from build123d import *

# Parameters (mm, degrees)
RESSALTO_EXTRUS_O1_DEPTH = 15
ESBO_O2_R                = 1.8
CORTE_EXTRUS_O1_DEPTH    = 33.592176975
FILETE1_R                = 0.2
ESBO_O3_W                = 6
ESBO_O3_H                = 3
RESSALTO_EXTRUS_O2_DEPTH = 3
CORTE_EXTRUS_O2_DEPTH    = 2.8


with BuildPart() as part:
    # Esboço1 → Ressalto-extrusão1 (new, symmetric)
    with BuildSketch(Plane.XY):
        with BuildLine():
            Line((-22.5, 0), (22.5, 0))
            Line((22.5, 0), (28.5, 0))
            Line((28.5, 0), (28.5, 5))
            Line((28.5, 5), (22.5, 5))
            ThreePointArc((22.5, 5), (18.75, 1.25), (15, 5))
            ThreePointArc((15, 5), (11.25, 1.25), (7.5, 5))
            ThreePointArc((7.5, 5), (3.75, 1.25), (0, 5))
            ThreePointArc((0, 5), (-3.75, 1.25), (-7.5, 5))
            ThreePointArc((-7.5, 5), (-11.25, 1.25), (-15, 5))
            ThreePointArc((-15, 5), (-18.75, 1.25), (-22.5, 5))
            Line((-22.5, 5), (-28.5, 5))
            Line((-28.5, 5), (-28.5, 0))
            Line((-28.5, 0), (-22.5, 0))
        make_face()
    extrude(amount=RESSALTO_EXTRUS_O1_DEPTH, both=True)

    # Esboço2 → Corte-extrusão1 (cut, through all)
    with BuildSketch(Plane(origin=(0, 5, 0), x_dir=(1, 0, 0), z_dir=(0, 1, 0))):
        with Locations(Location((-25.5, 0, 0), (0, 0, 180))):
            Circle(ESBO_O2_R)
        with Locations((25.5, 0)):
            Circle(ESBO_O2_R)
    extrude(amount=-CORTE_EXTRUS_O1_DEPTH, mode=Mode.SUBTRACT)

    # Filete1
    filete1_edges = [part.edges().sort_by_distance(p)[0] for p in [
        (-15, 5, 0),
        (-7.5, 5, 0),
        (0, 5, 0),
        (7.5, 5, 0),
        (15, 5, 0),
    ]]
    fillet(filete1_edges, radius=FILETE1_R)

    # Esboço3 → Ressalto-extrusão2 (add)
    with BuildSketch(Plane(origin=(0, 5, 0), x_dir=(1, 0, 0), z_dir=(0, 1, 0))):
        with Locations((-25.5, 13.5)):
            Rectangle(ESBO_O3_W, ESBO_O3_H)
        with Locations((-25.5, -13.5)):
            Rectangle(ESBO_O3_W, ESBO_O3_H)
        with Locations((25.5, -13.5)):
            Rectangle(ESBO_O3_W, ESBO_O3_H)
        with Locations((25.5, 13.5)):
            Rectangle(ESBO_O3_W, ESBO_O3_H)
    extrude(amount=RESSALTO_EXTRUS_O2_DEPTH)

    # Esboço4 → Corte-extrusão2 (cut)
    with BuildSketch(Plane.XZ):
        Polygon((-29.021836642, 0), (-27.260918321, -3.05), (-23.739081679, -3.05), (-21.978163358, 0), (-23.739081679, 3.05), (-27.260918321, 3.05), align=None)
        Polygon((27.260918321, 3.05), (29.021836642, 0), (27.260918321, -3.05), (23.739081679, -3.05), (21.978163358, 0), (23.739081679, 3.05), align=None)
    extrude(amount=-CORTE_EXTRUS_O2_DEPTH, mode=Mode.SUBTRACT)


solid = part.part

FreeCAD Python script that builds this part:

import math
import FreeCAD as App
import Part
import Sketcher

V = App.Vector
Q = App.Units.Quantity


def edges_at(feature, points):
    """Names of the edges that pass closest to the given points."""
    edges = feature.Shape.Edges
    near = lambda p: min(range(len(edges)), key=lambda i: edges[i].distToShape(Part.Vertex(*p))[0])
    return sorted({f"Edge{near(p) + 1}" for p in points})

doc = App.newDocument("Part")
body = doc.addObject("PartDesign::Body", "Body")

# Sketch on XY plane
sketch1 = body.newObject("Sketcher::SketchObject", "Sketch")
sketch1.AttachmentSupport = (doc.getObject("XY_Plane"), [""])
sketch1.MapMode = "FlatFace"
sketch1.addGeometry(Part.LineSegment(V(28.5, 0, 0), V(28.5, 5, 0)), False)
sketch1.addGeometry(Part.LineSegment(V(28.5, 5, 0), V(22.5, 5, 0)), False)
sketch1.addGeometry(Part.ArcOfCircle(Part.Circle(V(18.75, 5, 0), V(0, 0, 1), 3.75), math.radians(180), math.radians(360)), False)
sketch1.addGeometry(Part.ArcOfCircle(Part.Circle(V(11.25, 5, 0), V(0, 0, 1), 3.75), math.radians(180), math.radians(360)), False)
sketch1.addGeometry(Part.ArcOfCircle(Part.Circle(V(3.75, 5, 0), V(0, 0, 1), 3.75), math.radians(180), math.radians(360)), False)
sketch1.addGeometry(Part.ArcOfCircle(Part.Circle(V(-3.75, 5, 0), V(0, 0, 1), 3.75), math.radians(180), math.radians(360)), False)
sketch1.addGeometry(Part.ArcOfCircle(Part.Circle(V(-11.25, 5, 0), V(0, 0, 1), 3.75), math.radians(180), math.radians(360)), False)
sketch1.addGeometry(Part.ArcOfCircle(Part.Circle(V(-18.75, 5, 0), V(0, 0, 1), 3.75), math.radians(180), math.radians(360)), False)
sketch1.addGeometry(Part.LineSegment(V(-22.5, 5, 0), V(-28.5, 5, 0)), False)
sketch1.addGeometry(Part.LineSegment(V(-28.5, 5, 0), V(-28.5, 0, 0)), False)
sketch1.addGeometry(Part.LineSegment(V(-28.5, 0, 0), V(28.5, 0, 0)), False)
sketch1.addConstraint(Sketcher.Constraint("Coincident", 0, 2, 1, 1))
sketch1.addConstraint(Sketcher.Constraint("Coincident", 1, 2, 2, 2))
sketch1.addConstraint(Sketcher.Constraint("Tangent", 2, 1, 3, 2))
sketch1.addConstraint(Sketcher.Constraint("Tangent", 3, 1, 4, 2))
sketch1.addConstraint(Sketcher.Constraint("Tangent", 4, 1, 5, 2))
sketch1.addConstraint(Sketcher.Constraint("Tangent", 5, 1, 6, 2))
sketch1.addConstraint(Sketcher.Constraint("Tangent", 6, 1, 7, 2))
sketch1.addConstraint(Sketcher.Constraint("Coincident", 7, 1, 8, 1))
sketch1.addConstraint(Sketcher.Constraint("Coincident", 8, 2, 9, 1))
sketch1.addConstraint(Sketcher.Constraint("Coincident", 9, 2, 10, 1))
sketch1.addConstraint(Sketcher.Constraint("Coincident", 10, 2, 0, 1))
sketch1.addConstraint(Sketcher.Constraint("Vertical", 0))
sketch1.addConstraint(Sketcher.Constraint("Horizontal", 1))
sketch1.addConstraint(Sketcher.Constraint("Horizontal", 8))
sketch1.addConstraint(Sketcher.Constraint("Vertical", 9))
sketch1.addConstraint(Sketcher.Constraint("Horizontal", 10))
sketch1.addConstraint(Sketcher.Constraint("Equal", 2, 3))
sketch1.addConstraint(Sketcher.Constraint("Equal", 3, 4))
sketch1.addConstraint(Sketcher.Constraint("Equal", 4, 5))
sketch1.addConstraint(Sketcher.Constraint("Equal", 5, 6))
sketch1.addConstraint(Sketcher.Constraint("Equal", 6, 7))
sketch1.addConstraint(Sketcher.Constraint("Symmetric", 9, 2, 10, 2, -1, 1))
sketch1.addConstraint(Sketcher.Constraint("Symmetric", 4, 3, 5, 3, -2))
sketch1.addConstraint(Sketcher.Constraint("Horizontal", 2, 3, 3, 3))
sketch1.addConstraint(Sketcher.Constraint("Horizontal", 3, 3, 4, 3))
sketch1.addConstraint(Sketcher.Constraint("Horizontal", 5, 3, 6, 3))
sketch1.addConstraint(Sketcher.Constraint("Horizontal", 6, 3, 7, 3))
sketch1.addConstraint(Sketcher.Constraint("Horizontal", 7, 3, 0, 2))
sketch1.addConstraint(Sketcher.Constraint("Horizontal", 6, 1, 7, 1))
sketch1.addConstraint(Sketcher.Constraint("DistanceX", 1, 2, 1, 1, 6.0))
sketch1.addConstraint(Sketcher.Constraint("DistanceX", 10, 1, 10, 2, 57.0))
sketch1.addConstraint(Sketcher.Constraint("DistanceY", 0, 1, 0, 2, 5.0))
pad1 = body.newObject("PartDesign::Pad", "Pad")
pad1.Profile = sketch1
pad1.Length = 30
pad1.Midplane = True

# Sketch on XZ plane
sketch2 = body.newObject("Sketcher::SketchObject", "Sketch001")
sketch2.AttachmentSupport = (doc.getObject("XZ_Plane"), [""])
sketch2.MapMode = "FlatFace"
sketch2.AttachmentOffset = App.Placement(V(0, 0, -5), App.Rotation())
sketch2.addGeometry(Part.Circle(V(-25.5, 0, 0), V(0, 0, 1), 1.8), False)
sketch2.addGeometry(Part.Circle(V(25.5, 0, 0), V(0, 0, 1), 1.8), False)
sketch2.addConstraint(Sketcher.Constraint("Equal", 0, 1))
sketch2.addConstraint(Sketcher.Constraint("Symmetric", 0, 3, 1, 3, -1, 1))
sketch2.addConstraint(Sketcher.Constraint("PointOnObject", 0, 3, -1))
sketch2.addConstraint(Sketcher.Constraint("Diameter", 0, 3.6))
sketch2.addConstraint(Sketcher.Constraint("DistanceX", 0, 3, 1, 3, 51.0))
pocket1 = body.newObject("PartDesign::Pocket", "Pocket")
pocket1.Profile = sketch2
pocket1.Type = "ThroughAll"
pocket1.Reversed = True
doc.recompute()

fillet = body.newObject("PartDesign::Fillet", "Fillet")
fillet.Base = (pocket1, edges_at(pocket1, [
    (-15, 5, 0),
    (-7.5, 5, 0),
    (0, 5, 0),
    (7.5, 5, 0),
    (15, 5, 0),
]))
fillet.Radius = 0.2

# Sketch on XZ plane
sketch3 = body.newObject("Sketcher::SketchObject", "Sketch002")
sketch3.AttachmentSupport = (doc.getObject("XZ_Plane"), [""])
sketch3.MapMode = "FlatFace"
sketch3.AttachmentOffset = App.Placement(V(0, 0, -5), App.Rotation())
sketch3.addGeometry(Part.LineSegment(V(-28.5, -15, 0), V(-28.5, -12, 0)), False)
sketch3.addGeometry(Part.LineSegment(V(-28.5, -12, 0), V(-22.5, -12, 0)), False)
sketch3.addGeometry(Part.LineSegment(V(-22.5, -12, 0), V(-22.5, -15, 0)), False)
sketch3.addGeometry(Part.LineSegment(V(-22.5, -15, 0), V(-28.5, -15, 0)), False)
sketch3.addGeometry(Part.LineSegment(V(-28.5, 12, 0), V(-28.5, 15, 0)), False)
sketch3.addGeometry(Part.LineSegment(V(-28.5, 15, 0), V(-22.5, 15, 0)), False)
sketch3.addGeometry(Part.LineSegment(V(-22.5, 15, 0), V(-22.5, 12, 0)), False)
sketch3.addGeometry(Part.LineSegment(V(-22.5, 12, 0), V(-28.5, 12, 0)), False)
sketch3.addGeometry(Part.LineSegment(V(22.5, 12, 0), V(22.5, 15, 0)), False)
sketch3.addGeometry(Part.LineSegment(V(22.5, 15, 0), V(28.5, 15, 0)), False)
sketch3.addGeometry(Part.LineSegment(V(28.5, 15, 0), V(28.5, 12, 0)), False)
sketch3.addGeometry(Part.LineSegment(V(28.5, 12, 0), V(22.5, 12, 0)), False)
sketch3.addGeometry(Part.LineSegment(V(22.5, -15, 0), V(22.5, -12, 0)), False)
sketch3.addGeometry(Part.LineSegment(V(22.5, -12, 0), V(28.5, -12, 0)), False)
sketch3.addGeometry(Part.LineSegment(V(28.5, -12, 0), V(28.5, -15, 0)), False)
sketch3.addGeometry(Part.LineSegment(V(28.5, -15, 0), V(22.5, -15, 0)), False)
sketch3.addConstraint(Sketcher.Constraint("Coincident", 0, 2, 1, 1))
sketch3.addConstraint(Sketcher.Constraint("Coincident", 1, 2, 2, 1))
sketch3.addConstraint(Sketcher.Constraint("Coincident", 2, 2, 3, 1))
sketch3.addConstraint(Sketcher.Constraint("Coincident", 3, 2, 0, 1))
sketch3.addConstraint(Sketcher.Constraint("Coincident", 4, 2, 5, 1))
sketch3.addConstraint(Sketcher.Constraint("Coincident", 5, 2, 6, 1))
sketch3.addConstraint(Sketcher.Constraint("Coincident", 6, 2, 7, 1))
sketch3.addConstraint(Sketcher.Constraint("Coincident", 7, 2, 4, 1))
sketch3.addConstraint(Sketcher.Constraint("Coincident", 8, 2, 9, 1))
sketch3.addConstraint(Sketcher.Constraint("Coincident", 9, 2, 10, 1))
sketch3.addConstraint(Sketcher.Constraint("Coincident", 10, 2, 11, 1))
sketch3.addConstraint(Sketcher.Constraint("Coincident", 11, 2, 8, 1))
sketch3.addConstraint(Sketcher.Constraint("Coincident", 12, 2, 13, 1))
sketch3.addConstraint(Sketcher.Constraint("Coincident", 13, 2, 14, 1))
sketch3.addConstraint(Sketcher.Constraint("Coincident", 14, 2, 15, 1))
sketch3.addConstraint(Sketcher.Constraint("Coincident", 15, 2, 12, 1))
sketch3.addConstraint(Sketcher.Constraint("Vertical", 0))
sketch3.addConstraint(Sketcher.Constraint("Horizontal", 1))
sketch3.addConstraint(Sketcher.Constraint("Vertical", 2))
sketch3.addConstraint(Sketcher.Constraint("Horizontal", 3))
sketch3.addConstraint(Sketcher.Constraint("Vertical", 4))
sketch3.addConstraint(Sketcher.Constraint("Horizontal", 5))
sketch3.addConstraint(Sketcher.Constraint("Vertical", 6))
sketch3.addConstraint(Sketcher.Constraint("Horizontal", 7))
sketch3.addConstraint(Sketcher.Constraint("Vertical", 8))
sketch3.addConstraint(Sketcher.Constraint("Horizontal", 9))
sketch3.addConstraint(Sketcher.Constraint("Vertical", 10))
sketch3.addConstraint(Sketcher.Constraint("Horizontal", 11))
sketch3.addConstraint(Sketcher.Constraint("Vertical", 12))
sketch3.addConstraint(Sketcher.Constraint("Horizontal", 13))
sketch3.addConstraint(Sketcher.Constraint("Vertical", 14))
sketch3.addConstraint(Sketcher.Constraint("Horizontal", 15))
sketch3.addConstraint(Sketcher.Constraint("Symmetric", 2, 2, 8, 2, -1, 1))
sketch3.addConstraint(Sketcher.Constraint("Symmetric", 0, 2, 10, 2, -1, 1))
sketch3.addConstraint(Sketcher.Constraint("Symmetric", 6, 2, 12, 2, -1, 1))
sketch3.addConstraint(Sketcher.Constraint("Symmetric", 4, 2, 14, 2, -1, 1))
sketch3.addConstraint(Sketcher.Constraint("Symmetric", 5, 2, 8, 2, -2))
sketch3.addConstraint(Sketcher.Constraint("Symmetric", 7, 2, 10, 2, -2))
sketch3.addConstraint(Sketcher.Constraint("DistanceX", 1, 1, 1, 2, 6.0))
sketch3.addConstraint(Sketcher.Constraint("DistanceY", 0, 1, 0, 2, 3.0))
sketch3.addConstraint(Sketcher.Constraint("DistanceY", 0, 2, -1, 1, 12.0))
sketch3.addConstraint(Sketcher.Constraint("DistanceX", 5, 2, 8, 2, 45.0))
pad2 = body.newObject("PartDesign::Pad", "Pad001")
pad2.Profile = sketch3
pad2.Length = 3
pad2.Reversed = True

# Sketch on XZ plane
sketch4 = body.newObject("Sketcher::SketchObject", "Sketch003")
sketch4.AttachmentSupport = (doc.getObject("XZ_Plane"), [""])
sketch4.MapMode = "FlatFace"
sketch4.addGeometry(Part.LineSegment(V(-29.021837, 0, 0), V(-27.260918, -3.05, 0)), False)
sketch4.addGeometry(Part.LineSegment(V(-27.260918, -3.05, 0), V(-23.739082, -3.05, 0)), False)
sketch4.addGeometry(Part.LineSegment(V(-23.739082, -3.05, 0), V(-21.978163, 0, 0)), False)
sketch4.addGeometry(Part.LineSegment(V(-21.978163, 0, 0), V(-23.739082, 3.05, 0)), False)
sketch4.addGeometry(Part.LineSegment(V(-23.739082, 3.05, 0), V(-27.260918, 3.05, 0)), False)
sketch4.addGeometry(Part.LineSegment(V(-27.260918, 3.05, 0), V(-29.021837, 0, 0)), False)
sketch4.addGeometry(Part.LineSegment(V(29.021837, 0, 0), V(27.260918, 3.05, 0)), False)
sketch4.addGeometry(Part.LineSegment(V(27.260918, 3.05, 0), V(23.739082, 3.05, 0)), False)
sketch4.addGeometry(Part.LineSegment(V(23.739082, 3.05, 0), V(21.978163, 0, 0)), False)
sketch4.addGeometry(Part.LineSegment(V(21.978163, 0, 0), V(23.739082, -3.05, 0)), False)
sketch4.addGeometry(Part.LineSegment(V(23.739082, -3.05, 0), V(27.260918, -3.05, 0)), False)
sketch4.addGeometry(Part.LineSegment(V(27.260918, -3.05, 0), V(29.021837, 0, 0)), False)
sketch4.addConstraint(Sketcher.Constraint("Coincident", 0, 2, 1, 1))
sketch4.addConstraint(Sketcher.Constraint("Coincident", 1, 2, 2, 1))
sketch4.addConstraint(Sketcher.Constraint("Coincident", 2, 2, 3, 1))
sketch4.addConstraint(Sketcher.Constraint("Coincident", 3, 2, 4, 1))
sketch4.addConstraint(Sketcher.Constraint("Coincident", 4, 2, 5, 1))
sketch4.addConstraint(Sketcher.Constraint("Coincident", 5, 2, 0, 1))
sketch4.addConstraint(Sketcher.Constraint("Coincident", 6, 2, 7, 1))
sketch4.addConstraint(Sketcher.Constraint("Coincident", 7, 2, 8, 1))
sketch4.addConstraint(Sketcher.Constraint("Coincident", 8, 2, 9, 1))
sketch4.addConstraint(Sketcher.Constraint("Coincident", 9, 2, 10, 1))
sketch4.addConstraint(Sketcher.Constraint("Coincident", 10, 2, 11, 1))
sketch4.addConstraint(Sketcher.Constraint("Coincident", 11, 2, 6, 1))
sketch4.addConstraint(Sketcher.Constraint("Horizontal", 1))
sketch4.addConstraint(Sketcher.Constraint("Horizontal", 4))
sketch4.addConstraint(Sketcher.Constraint("Horizontal", 7))
sketch4.addConstraint(Sketcher.Constraint("Horizontal", 10))
sketch4.addConstraint(Sketcher.Constraint("Symmetric", 0, 2, 6, 2, -1, 1))
sketch4.addConstraint(Sketcher.Constraint("Symmetric", 2, 2, 8, 2, -1, 1))
sketch4.addConstraint(Sketcher.Constraint("Symmetric", 3, 2, 9, 2, -1, 1))
sketch4.addConstraint(Sketcher.Constraint("Symmetric", 5, 2, 11, 2, -1, 1))
sketch4.addConstraint(Sketcher.Constraint("Symmetric", 4, 2, 6, 2, -2))
sketch4.addConstraint(Sketcher.Constraint("PointOnObject", 2, 2, -1))
sketch4.addConstraint(Sketcher.Constraint("PointOnObject", 5, 2, -1))
sketch4.addConstraint(Sketcher.Constraint("Parallel", 0, 3))
sketch4.addConstraint(Sketcher.Constraint("Parallel", 2, 5))
sketch4.addConstraint(Sketcher.Constraint("Parallel", 5, 8))
sketch4.addConstraint(Sketcher.Constraint("Parallel", 8, 11))
sketch4.addConstraint(Sketcher.Constraint("Angle", 0, Q("-60 deg")))
sketch4.addConstraint(Sketcher.Constraint("DistanceX", 3, 2, 6, 2, 51.0))
sketch4.addConstraint(Sketcher.Constraint("DistanceY", 1, 2, 3, 2, 6.1))
sketch4.addConstraint(Sketcher.Constraint("DistanceX", 1, 1, 1, 2, 3.521837))
pocket2 = body.newObject("PartDesign::Pocket", "Pocket001")
pocket2.Profile = sketch4
pocket2.Length = 2.8

doc.recompute()
